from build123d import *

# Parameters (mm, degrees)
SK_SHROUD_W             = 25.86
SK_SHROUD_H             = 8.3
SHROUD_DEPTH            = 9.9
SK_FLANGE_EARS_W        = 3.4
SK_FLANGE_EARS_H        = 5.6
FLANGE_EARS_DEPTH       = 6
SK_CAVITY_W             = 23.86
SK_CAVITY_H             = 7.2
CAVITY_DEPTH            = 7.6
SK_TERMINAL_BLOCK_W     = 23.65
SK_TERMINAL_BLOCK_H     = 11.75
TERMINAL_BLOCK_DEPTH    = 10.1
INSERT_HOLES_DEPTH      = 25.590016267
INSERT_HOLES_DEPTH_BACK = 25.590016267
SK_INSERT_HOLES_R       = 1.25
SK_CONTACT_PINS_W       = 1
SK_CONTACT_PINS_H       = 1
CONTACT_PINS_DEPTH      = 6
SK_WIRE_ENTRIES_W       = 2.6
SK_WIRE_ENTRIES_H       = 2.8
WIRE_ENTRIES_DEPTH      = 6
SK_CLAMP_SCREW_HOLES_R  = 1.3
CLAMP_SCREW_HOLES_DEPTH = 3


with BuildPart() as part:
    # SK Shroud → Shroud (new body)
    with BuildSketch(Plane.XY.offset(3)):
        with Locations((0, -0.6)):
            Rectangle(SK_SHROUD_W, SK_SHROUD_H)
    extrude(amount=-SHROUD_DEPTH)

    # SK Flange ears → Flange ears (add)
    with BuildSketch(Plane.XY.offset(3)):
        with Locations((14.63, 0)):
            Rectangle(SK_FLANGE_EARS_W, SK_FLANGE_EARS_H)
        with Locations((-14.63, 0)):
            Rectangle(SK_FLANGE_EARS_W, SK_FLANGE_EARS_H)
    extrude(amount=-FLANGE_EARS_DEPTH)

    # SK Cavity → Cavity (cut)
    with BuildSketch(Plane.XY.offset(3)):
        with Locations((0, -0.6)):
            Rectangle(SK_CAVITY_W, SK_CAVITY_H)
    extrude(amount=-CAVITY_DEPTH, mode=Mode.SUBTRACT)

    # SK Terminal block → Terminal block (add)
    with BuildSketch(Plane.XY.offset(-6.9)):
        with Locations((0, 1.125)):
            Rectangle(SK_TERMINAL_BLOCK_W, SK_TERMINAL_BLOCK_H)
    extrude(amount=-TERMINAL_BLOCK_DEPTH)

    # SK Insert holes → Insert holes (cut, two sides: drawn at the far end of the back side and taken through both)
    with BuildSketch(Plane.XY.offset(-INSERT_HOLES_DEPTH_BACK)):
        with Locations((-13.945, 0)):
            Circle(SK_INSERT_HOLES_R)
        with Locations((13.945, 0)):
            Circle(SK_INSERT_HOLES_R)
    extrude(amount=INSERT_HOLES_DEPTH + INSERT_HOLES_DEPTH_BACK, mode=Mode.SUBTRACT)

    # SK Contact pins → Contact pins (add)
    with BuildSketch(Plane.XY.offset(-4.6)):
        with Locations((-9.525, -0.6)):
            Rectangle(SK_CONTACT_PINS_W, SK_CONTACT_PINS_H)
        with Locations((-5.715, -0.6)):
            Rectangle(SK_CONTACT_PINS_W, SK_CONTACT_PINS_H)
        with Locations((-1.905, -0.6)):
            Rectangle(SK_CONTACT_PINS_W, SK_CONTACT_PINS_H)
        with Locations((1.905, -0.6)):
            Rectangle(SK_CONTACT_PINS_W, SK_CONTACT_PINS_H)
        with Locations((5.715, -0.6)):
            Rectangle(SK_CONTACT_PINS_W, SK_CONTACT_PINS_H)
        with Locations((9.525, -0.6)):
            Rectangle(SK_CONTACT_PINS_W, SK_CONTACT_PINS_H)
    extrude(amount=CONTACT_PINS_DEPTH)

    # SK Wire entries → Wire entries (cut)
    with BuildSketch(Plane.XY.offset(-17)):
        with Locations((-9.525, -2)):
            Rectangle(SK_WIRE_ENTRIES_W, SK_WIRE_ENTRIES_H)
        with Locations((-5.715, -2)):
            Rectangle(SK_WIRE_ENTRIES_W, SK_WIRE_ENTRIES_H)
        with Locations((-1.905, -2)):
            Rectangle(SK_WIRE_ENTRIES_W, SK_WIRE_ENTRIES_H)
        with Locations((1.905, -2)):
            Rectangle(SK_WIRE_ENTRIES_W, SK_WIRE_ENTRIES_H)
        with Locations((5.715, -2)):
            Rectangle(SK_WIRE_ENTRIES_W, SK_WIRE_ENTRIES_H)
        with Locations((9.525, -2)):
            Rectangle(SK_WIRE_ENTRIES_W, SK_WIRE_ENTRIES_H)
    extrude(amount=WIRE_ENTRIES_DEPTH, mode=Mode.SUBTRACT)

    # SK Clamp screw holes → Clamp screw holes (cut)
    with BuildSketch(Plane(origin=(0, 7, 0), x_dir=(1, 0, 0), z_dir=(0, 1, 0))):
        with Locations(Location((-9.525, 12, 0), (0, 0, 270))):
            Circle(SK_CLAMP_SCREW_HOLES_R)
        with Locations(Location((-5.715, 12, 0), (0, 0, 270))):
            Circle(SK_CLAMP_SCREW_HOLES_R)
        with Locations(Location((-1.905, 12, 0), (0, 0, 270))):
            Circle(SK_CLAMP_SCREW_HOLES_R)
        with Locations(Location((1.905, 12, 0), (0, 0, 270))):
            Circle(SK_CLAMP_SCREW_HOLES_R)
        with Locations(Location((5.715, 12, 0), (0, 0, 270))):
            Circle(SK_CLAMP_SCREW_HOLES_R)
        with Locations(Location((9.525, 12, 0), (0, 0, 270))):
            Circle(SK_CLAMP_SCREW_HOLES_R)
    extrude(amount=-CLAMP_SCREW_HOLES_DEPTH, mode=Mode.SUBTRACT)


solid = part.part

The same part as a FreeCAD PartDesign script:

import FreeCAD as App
import Part
import Sketcher
from FreeCAD import Vector


def add_polygon(sketch, points):
    """Adds a closed chain of lines whose ends are joined by coincident constraints."""
    first, n = sketch.GeometryCount, len(points)
    for a, b in zip(points, points[1:] + points[:1]):
        sketch.addGeometry(Part.LineSegment(App.Vector(*a, 0), App.Vector(*b, 0)), False)
    for i in range(n):
        sketch.addConstraint(Sketcher.Constraint("Coincident", first + i, 2, first + (i + 1) % n, 1))

doc = App.newDocument("Part")
body = doc.addObject("PartDesign::Body", "Body")

# Sketch on XY plane
sketch1 = doc.addObject("Sketcher::SketchObject", "Sketch")
body.addObject(sketch1)
sketch1.AttachmentSupport = (doc.XY_Plane, [""])
sketch1.MapMode = "FlatFace"
sketch1.AttachmentOffset = App.Placement(Vector(0, 0, 3), App.Rotation())
add_polygon(sketch1, [(-12.93, 3.55), (-12.93, -4.75), (12.93, -4.75), (12.93, 3.55)])  # lines 0-3
sketch1.addConstraint(Sketcher.Constraint("Vertical", 0))
sketch1.addConstraint(Sketcher.Constraint("Horizontal", 1))
sketch1.addConstraint(Sketcher.Constraint("Vertical", 2))
sketch1.addConstraint(Sketcher.Constraint("Horizontal", 3))
sketch1.addConstraint(Sketcher.Constraint("DistanceY", 0, 2, 0, 1, 8.3))
sketch1.addConstraint(Sketcher.Constraint("DistanceX", 1, 1, 1, 2, 25.86))
sketch1.addConstraint(Sketcher.Constraint("DistanceX", 0, 2, -1, 1, 12.93))
sketch1.addConstraint(Sketcher.Constraint("DistanceY", 0, 2, -1, 1, 4.75))
pad1 = doc.addObject("PartDesign::Pad", "Pad")
body.addObject(pad1)
pad1.Profile = sketch1
pad1.Length = 9.9
pad1.Reversed = True

# Sketch on XY plane
sketch2 = doc.addObject("Sketcher::SketchObject", "Sketch001")
body.addObject(sketch2)
sketch2.AttachmentSupport = (doc.XY_Plane, [""])
sketch2.MapMode = "FlatFace"
sketch2.AttachmentOffset = App.Placement(Vector(0, 0, 3), App.Rotation())
add_polygon(sketch2, [(12.93, 2.8), (12.93, -2.8), (16.33, -2.8), (16.33, 2.8)])  # lines 0-3
add_polygon(sketch2, [(-16.33, 2.8), (-16.33, -2.8), (-12.93, -2.8), (-12.93, 2.8)])  # lines 4-7
sketch2.addConstraint(Sketcher.Constraint("Vertical", 0))
sketch2.addConstraint(Sketcher.Constraint("Horizontal", 1))
sketch2.addConstraint(Sketcher.Constraint("Vertical", 2))
sketch2.addConstraint(Sketcher.Constraint("Horizontal", 3))
sketch2.addConstraint(Sketcher.Constraint("Vertical", 4))
sketch2.addConstraint(Sketcher.Constraint("Horizontal", 5))
sketch2.addConstraint(Sketcher.Constraint("Vertical", 6))
sketch2.addConstraint(Sketcher.Constraint("Horizontal", 7))
sketch2.addConstraint(Sketcher.Constraint("Symmetric", 2, 2, 4, 2, -1, 1))
sketch2.addConstraint(Sketcher.Constraint("Symmetric", 0, 2, 6, 2, -1, 1))
sketch2.addConstraint(Sketcher.Constraint("Horizontal", 1, 2, 4, 2))
sketch2.addConstraint(Sketcher.Constraint("DistanceX", 1, 1, 1, 2, 3.4))
sketch2.addConstraint(Sketcher.Constraint("DistanceY", 0, 2, 0, 1, 5.6))
sketch2.addConstraint(Sketcher.Constraint("DistanceX", -1, 1, 0, 2, 12.93))
pad2 = doc.addObject("PartDesign::Pad", "Pad001")
body.addObject(pad2)
pad2.Profile = sketch2
pad2.Length = 6
pad2.Reversed = True

# Sketch on XY plane
sketch3 = doc.addObject("Sketcher::SketchObject", "Sketch002")
body.addObject(sketch3)
sketch3.AttachmentSupport = (doc.XY_Plane, [""])
sketch3.MapMode = "FlatFace"
sketch3.AttachmentOffset = App.Placement(Vector(0, 0, 3), App.Rotation())
add_polygon(sketch3, [(-11.93, 3), (-11.93, -4.2), (11.93, -4.2), (11.93, 3)])  # lines 0-3
sketch3.addConstraint(Sketcher.Constraint("Vertical", 0))
sketch3.addConstraint(Sketcher.Constraint("Horizontal", 1))
sketch3.addConstraint(Sketcher.Constraint("Vertical", 2))
sketch3.addConstraint(Sketcher.Constraint("Horizontal", 3))
sketch3.addConstraint(Sketcher.Constraint("DistanceY", 0, 2, 0, 1, 7.2))
sketch3.addConstraint(Sketcher.Constraint("DistanceY", -1, 1, 2, 2, 3.0))
sketch3.addConstraint(Sketcher.Constraint("DistanceX", 1, 1, 1, 2, 23.86))
sketch3.addConstraint(Sketcher.Constraint("DistanceX", 0, 2, -1, 1, 11.93))
pocket1 = doc.addObject("PartDesign::Pocket", "Pocket")
body.addObject(pocket1)
pocket1.Profile = sketch3
pocket1.Length = 7.6

# Sketch on XY plane
sketch4 = doc.addObject("Sketcher::SketchObject", "Sketch003")
body.addObject(sketch4)
sketch4.AttachmentSupport = (doc.XY_Plane, [""])
sketch4.MapMode = "FlatFace"
sketch4.AttachmentOffset = App.Placement(Vector(0, 0, -6.9), App.Rotation())
add_polygon(sketch4, [(-11.825, 7), (-11.825, -4.75), (11.825, -4.75), (11.825, 7)])  # lines 0-3
sketch4.addConstraint(Sketcher.Constraint("Vertical", 0))
sketch4.addConstraint(Sketcher.Constraint("Horizontal", 1))
sketch4.addConstraint(Sketcher.Constraint("Vertical", 2))
sketch4.addConstraint(Sketcher.Constraint("Horizontal", 3))
sketch4.addConstraint(Sketcher.Constraint("DistanceY", -1, 1, 2, 2, 7.0))
sketch4.addConstraint(Sketcher.Constraint("DistanceX", 1, 1, 1, 2, 23.65))
sketch4.addConstraint(Sketcher.Constraint("DistanceY", 0, 2, 0, 1, 11.75))
sketch4.addConstraint(Sketcher.Constraint("DistanceX", 0, 2, -1, 1, 11.825))
pad3 = doc.addObject("PartDesign::Pad", "Pad002")
body.addObject(pad3)
pad3.Profile = sketch4
pad3.Length = 10.1
pad3.Reversed = True

# Sketch on XY plane
sketch5 = doc.addObject("Sketcher::SketchObject", "Sketch004")
body.addObject(sketch5)
sketch5.AttachmentSupport = (doc.XY_Plane, [""])
sketch5.MapMode = "FlatFace"
sketch5.addGeometry(Part.Circle(Vector(-13.945, 0, 0), Vector(0, 0, 1), 1.25), False)
sketch5.addGeometry(Part.Circle(Vector(13.945, 0, 0), Vector(0, 0, 1), 1.25), False)
sketch5.addConstraint(Sketcher.Constraint("Equal", 0, 1))
sketch5.addConstraint(Sketcher.Constraint("Symmetric", 0, 3, 1, 3, -1, 1))
sketch5.addConstraint(Sketcher.Constraint("PointOnObject", 0, 3, -1))
sketch5.addConstraint(Sketcher.Constraint("Diameter", 0, 2.5))
sketch5.addConstraint(Sketcher.Constraint("DistanceX", 0, 3, 1, 3, 27.89))
pocket2 = doc.addObject("PartDesign::Pocket", "Pocket001")
body.addObject(pocket2)
pocket2.Profile = sketch5
pocket2.Type = "ThroughAll"
pocket2.Midplane = True

# Sketch on XY plane
sketch6 = doc.addObject("Sketcher::SketchObject", "Sketch005")
body.addObject(sketch6)
sketch6.AttachmentSupport = (doc.XY_Plane, [""])
sketch6.MapMode = "FlatFace"
sketch6.AttachmentOffset = App.Placement(Vector(0, 0, -4.6), App.Rotation())
add_polygon(sketch6, [(-10.025, -0.1), (-10.025, -1.1), (-9.025, -1.1), (-9.025, -0.1)])  # lines 0-3
add_polygon(sketch6, [(-6.215, -0.1), (-6.215, -1.1), (-5.215, -1.1), (-5.215, -0.1)])  # lines 4-7
add_polygon(sketch6, [(-2.405, -0.1), (-2.405, -1.1), (-1.405, -1.1), (-1.405, -0.1)])  # lines 8-11
add_polygon(sketch6, [(1.405, -0.1), (1.405, -1.1), (2.405, -1.1), (2.405, -0.1)])  # lines 12-15
add_polygon(sketch6, [(5.215, -0.1), (5.215, -1.1), (6.215, -1.1), (6.215, -0.1)])  # lines 16-19
add_polygon(sketch6, [(9.025, -0.1), (9.025, -1.1), (10.025, -1.1), (10.025, -0.1)])  # lines 20-23
sketch6.addConstraint(Sketcher.Constraint("Vertical", 0))
sketch6.addConstraint(Sketcher.Constraint("Horizontal", 1))
sketch6.addConstraint(Sketcher.Constraint("Vertical", 2))
sketch6.addConstraint(Sketcher.Constraint("Horizontal", 3))
sketch6.addConstraint(Sketcher.Constraint("Vertical", 4))
sketch6.addConstraint(Sketcher.Constraint("Horizontal", 5))
sketch6.addConstraint(Sketcher.Constraint("Vertical", 6))
sketch6.addConstraint(Sketcher.Constraint("Horizontal", 7))
sketch6.addConstraint(Sketcher.Constraint("Vertical", 8))
sketch6.addConstraint(Sketcher.Constraint("Horizontal", 9))
sketch6.addConstraint(Sketcher.Constraint("Vertical", 10))
sketch6.addConstraint(Sketcher.Constraint("Horizontal", 11))
sketch6.addConstraint(Sketcher.Constraint("Vertical", 12))
sketch6.addConstraint(Sketcher.Constraint("Horizontal", 13))
sketch6.addConstraint(Sketcher.Constraint("Vertical", 14))
sketch6.addConstraint(Sketcher.Constraint("Horizontal", 15))
sketch6.addConstraint(Sketcher.Constraint("Vertical", 16))
sketch6.addConstraint(Sketcher.Constraint("Horizontal", 17))
sketch6.addConstraint(Sketcher.Constraint("Vertical", 18))
sketch6.addConstraint(Sketcher.Constraint("Horizontal", 19))
sketch6.addConstraint(Sketcher.Constraint("Vertical", 20))
sketch6.addConstraint(Sketcher.Constraint("Horizontal", 21))
sketch6.addConstraint(Sketcher.Constraint("Vertical", 22))
sketch6.addConstraint(Sketcher.Constraint("Horizontal", 23))
sketch6.addConstraint(Sketcher.Constraint("Symmetric", 9, 2, 12, 2, -2))
sketch6.addConstraint(Sketcher.Constraint("Symmetric", 11, 2, 14, 2, -2))
sketch6.addConstraint(Sketcher.Constraint("Symmetric", 5, 2, 16, 2, -2))
sketch6.addConstraint(Sketcher.Constraint("Symmetric", 7, 2, 18, 2, -2))
sketch6.addConstraint(Sketcher.Constraint("Symmetric", 1, 2, 20, 2, -2))
sketch6.addConstraint(Sketcher.Constraint("Symmetric", 3, 2, 22, 2, -2))
sketch6.addConstraint(Sketcher.Constraint("Horizontal", 1, 2, 4, 2))
sketch6.addConstraint(Sketcher.Constraint("Horizontal", 3, 2, 6, 2))
sketch6.addConstraint(Sketcher.Constraint("Horizontal", 5, 2, 8, 2))
sketch6.addConstraint(Sketcher.Constraint("Horizontal", 7, 2, 10, 2))
sketch6.addConstraint(Sketcher.Constraint("Equal", 3, 5))
sketch6.addConstraint(Sketcher.Constraint("Equal", 7, 9))
sketch6.addConstraint(Sketcher.Constraint("Equal", 23, 0))
sketch6.addConstraint(Sketcher.Constraint("DistanceX", 1, 1, 1, 2, 1.0))
sketch6.addConstraint(Sketcher.Constraint("DistanceY", 0, 2, -1, 1, 1.1))
sketch6.addConstraint(Sketcher.Constraint("DistanceX", 1, 2, 4, 2, 2.81))
sketch6.addConstraint(Sketcher.Constraint("DistanceX", 5, 2, 8, 2, 2.81))
sketch6.addConstraint(Sketcher.Constraint("DistanceX", 9, 2, 12, 2, 2.81))
pad4 = doc.addObject("PartDesign::Pad", "Pad003")
body.addObject(pad4)
pad4.Profile = sketch6
pad4.Length = 6

# Sketch on XY plane
sketch7 = doc.addObject("Sketcher::SketchObject", "Sketch006")
body.addObject(sketch7)
sketch7.AttachmentSupport = (doc.XY_Plane, [""])
sketch7.MapMode = "FlatFace"
sketch7.AttachmentOffset = App.Placement(Vector(0, 0, -17), App.Rotation())
add_polygon(sketch7, [(-10.825, -0.6), (-10.825, -3.4), (-8.225, -3.4), (-8.225, -0.6)])  # lines 0-3
add_polygon(sketch7, [(-7.015, -0.6), (-7.015, -3.4), (-4.415, -3.4), (-4.415, -0.6)])  # lines 4-7
add_polygon(sketch7, [(-3.205, -0.6), (-3.205, -3.4), (-0.605, -3.4), (-0.605, -0.6)])  # lines 8-11
add_polygon(sketch7, [(0.605, -0.6), (0.605, -3.4), (3.205, -3.4), (3.205, -0.6)])  # lines 12-15
add_polygon(sketch7, [(4.415, -0.6), (4.415, -3.4), (7.015, -3.4), (7.015, -0.6)])  # lines 16-19
add_polygon(sketch7, [(8.225, -0.6), (8.225, -3.4), (10.825, -3.4), (10.825, -0.6)])  # lines 20-23
sketch7.addConstraint(Sketcher.Constraint("Vertical", 0))
sketch7.addConstraint(Sketcher.Constraint("Horizontal", 1))
sketch7.addConstraint(Sketcher.Constraint("Vertical", 2))
sketch7.addConstraint(Sketcher.Constraint("Horizontal", 3))
sketch7.addConstraint(Sketcher.Constraint("Vertical", 4))
sketch7.addConstraint(Sketcher.Constraint("Horizontal", 5))
sketch7.addConstraint(Sketcher.Constraint("Vertical", 6))
sketch7.addConstraint(Sketcher.Constraint("Horizontal", 7))
sketch7.addConstraint(Sketcher.Constraint("Vertical", 8))
sketch7.addConstraint(Sketcher.Constraint("Horizontal", 9))
sketch7.addConstraint(Sketcher.Constraint("Vertical", 10))
sketch7.addConstraint(Sketcher.Constraint("Horizontal", 11))
sketch7.addConstraint(Sketcher.Constraint("Vertical", 12))
sketch7.addConstraint(Sketcher.Constraint("Horizontal", 13))
sketch7.addConstraint(Sketcher.Constraint("Vertical", 14))
sketch7.addConstraint(Sketcher.Constraint("Horizontal", 15))
sketch7.addConstraint(Sketcher.Constraint("Vertical", 16))
sketch7.addConstraint(Sketcher.Constraint("Horizontal", 17))
sketch7.addConstraint(Sketcher.Constraint("Vertical", 18))
sketch7.addConstraint(Sketcher.Constraint("Horizontal", 19))
sketch7.addConstraint(Sketcher.Constraint("Vertical", 20))
sketch7.addConstraint(Sketcher.Constraint("Horizontal", 21))
sketch7.addConstraint(Sketcher.Constraint("Vertical", 22))
sketch7.addConstraint(Sketcher.Constraint("Horizontal", 23))
sketch7.addConstraint(Sketcher.Constraint("Symmetric", 9, 2, 12, 2, -2))
sketch7.addConstraint(Sketcher.Constraint("Symmetric", 11, 2, 14, 2, -2))
sketch7.addConstraint(Sketcher.Constraint("Symmetric", 5, 2, 16, 2, -2))
sketch7.addConstraint(Sketcher.Constraint("Symmetric", 7, 2, 18, 2, -2))
sketch7.addConstraint(Sketcher.Constraint("Symmetric", 1, 2, 20, 2, -2))
sketch7.addConstraint(Sketcher.Constraint("Symmetric", 3, 2, 22, 2, -2))
sketch7.addConstraint(Sketcher.Constraint("Horizontal", 1, 2, 4, 2))
sketch7.addConstraint(Sketcher.Constraint("Horizontal", 3, 2, 6, 2))
sketch7.addConstraint(Sketcher.Constraint("Horizontal", 5, 2, 8, 2))
sketch7.addConstraint(Sketcher.Constraint("Horizontal", 7, 2, 10, 2))
sketch7.addConstraint(Sketcher.Constraint("Equal", 3, 5))
sketch7.addConstraint(Sketcher.Constraint("Equal", 7, 9))
sketch7.addConstraint(Sketcher.Constraint("DistanceX", 1, 1, 1, 2, 2.6))
sketch7.addConstraint(Sketcher.Constraint("DistanceY", 0, 2, 0, 1, 2.8))
sketch7.addConstraint(Sketcher.Constraint("DistanceY", 0, 2, -1, 1, 3.4))
sketch7.addConstraint(Sketcher.Constraint("DistanceX", 1, 2, 4, 2, 1.21))
sketch7.addConstraint(Sketcher.Constraint("DistanceX", 5, 2, 8, 2, 1.21))
sketch7.addConstraint(Sketcher.Constraint("DistanceX", 9, 2, 12, 2, 1.21))
pocket3 = doc.addObject("PartDesign::Pocket", "Pocket002")
body.addObject(pocket3)
pocket3.Profile = sketch7
pocket3.Length = 6
pocket3.Reversed = True

# Sketch on XZ plane
sketch8 = doc.addObject("Sketcher::SketchObject", "Sketch007")
body.addObject(sketch8)
sketch8.AttachmentSupport = (doc.XZ_Plane, [""])
sketch8.MapMode = "FlatFace"
sketch8.AttachmentOffset = App.Placement(Vector(0, 0, -7), App.Rotation())
sketch8.addGeometry(Part.Circle(Vector(-9.525, -12, 0), Vector(0, 0, 1), 1.3), False)
sketch8.addGeometry(Part.Circle(Vector(-5.715, -12, 0), Vector(0, 0, 1), 1.3), False)
sketch8.addGeometry(Part.Circle(Vector(-1.905, -12, 0), Vector(0, 0, 1), 1.3), False)
sketch8.addGeometry(Part.Circle(Vector(1.905, -12, 0), Vector(0, 0, 1), 1.3), False)
sketch8.addGeometry(Part.Circle(Vector(5.715, -12, 0), Vector(0, 0, 1), 1.3), False)
sketch8.addGeometry(Part.Circle(Vector(9.525, -12, 0), Vector(0, 0, 1), 1.3), False)
sketch8.addConstraint(Sketcher.Constraint("Equal", 0, 1))
sketch8.addConstraint(Sketcher.Constraint("Equal", 1, 2))
sketch8.addConstraint(Sketcher.Constraint("Equal", 2, 3))
sketch8.addConstraint(Sketcher.Constraint("Equal", 3, 4))
sketch8.addConstraint(Sketcher.Constraint("Equal", 4, 5))
sketch8.addConstraint(Sketcher.Constraint("Symmetric", 2, 3, 3, 3, -2))
sketch8.addConstraint(Sketcher.Constraint("Symmetric", 1, 3, 4, 3, -2))
sketch8.addConstraint(Sketcher.Constraint("Symmetric", 0, 3, 5, 3, -2))
sketch8.addConstraint(Sketcher.Constraint("Horizontal", 0, 3, 1, 3))
sketch8.addConstraint(Sketcher.Constraint("Horizontal", 1, 3, 2, 3))
sketch8.addConstraint(Sketcher.Constraint("Diameter", 0, 2.6))
sketch8.addConstraint(Sketcher.Constraint("DistanceY", 0, 3, -1, 1, 12.0))
sketch8.addConstraint(Sketcher.Constraint("DistanceX", 0, 3, 1, 3, 3.81))
sketch8.addConstraint(Sketcher.Constraint("DistanceX", 1, 3, 2, 3, 3.81))
sketch8.addConstraint(Sketcher.Constraint("DistanceX", 2, 3, 3, 3, 3.81))
pocket4 = doc.addObject("PartDesign::Pocket", "Pocket003")
body.addObject(pocket4)
pocket4.Profile = sketch8
pocket4.Length = 3
pocket4.Reversed = True

doc.recompute()
